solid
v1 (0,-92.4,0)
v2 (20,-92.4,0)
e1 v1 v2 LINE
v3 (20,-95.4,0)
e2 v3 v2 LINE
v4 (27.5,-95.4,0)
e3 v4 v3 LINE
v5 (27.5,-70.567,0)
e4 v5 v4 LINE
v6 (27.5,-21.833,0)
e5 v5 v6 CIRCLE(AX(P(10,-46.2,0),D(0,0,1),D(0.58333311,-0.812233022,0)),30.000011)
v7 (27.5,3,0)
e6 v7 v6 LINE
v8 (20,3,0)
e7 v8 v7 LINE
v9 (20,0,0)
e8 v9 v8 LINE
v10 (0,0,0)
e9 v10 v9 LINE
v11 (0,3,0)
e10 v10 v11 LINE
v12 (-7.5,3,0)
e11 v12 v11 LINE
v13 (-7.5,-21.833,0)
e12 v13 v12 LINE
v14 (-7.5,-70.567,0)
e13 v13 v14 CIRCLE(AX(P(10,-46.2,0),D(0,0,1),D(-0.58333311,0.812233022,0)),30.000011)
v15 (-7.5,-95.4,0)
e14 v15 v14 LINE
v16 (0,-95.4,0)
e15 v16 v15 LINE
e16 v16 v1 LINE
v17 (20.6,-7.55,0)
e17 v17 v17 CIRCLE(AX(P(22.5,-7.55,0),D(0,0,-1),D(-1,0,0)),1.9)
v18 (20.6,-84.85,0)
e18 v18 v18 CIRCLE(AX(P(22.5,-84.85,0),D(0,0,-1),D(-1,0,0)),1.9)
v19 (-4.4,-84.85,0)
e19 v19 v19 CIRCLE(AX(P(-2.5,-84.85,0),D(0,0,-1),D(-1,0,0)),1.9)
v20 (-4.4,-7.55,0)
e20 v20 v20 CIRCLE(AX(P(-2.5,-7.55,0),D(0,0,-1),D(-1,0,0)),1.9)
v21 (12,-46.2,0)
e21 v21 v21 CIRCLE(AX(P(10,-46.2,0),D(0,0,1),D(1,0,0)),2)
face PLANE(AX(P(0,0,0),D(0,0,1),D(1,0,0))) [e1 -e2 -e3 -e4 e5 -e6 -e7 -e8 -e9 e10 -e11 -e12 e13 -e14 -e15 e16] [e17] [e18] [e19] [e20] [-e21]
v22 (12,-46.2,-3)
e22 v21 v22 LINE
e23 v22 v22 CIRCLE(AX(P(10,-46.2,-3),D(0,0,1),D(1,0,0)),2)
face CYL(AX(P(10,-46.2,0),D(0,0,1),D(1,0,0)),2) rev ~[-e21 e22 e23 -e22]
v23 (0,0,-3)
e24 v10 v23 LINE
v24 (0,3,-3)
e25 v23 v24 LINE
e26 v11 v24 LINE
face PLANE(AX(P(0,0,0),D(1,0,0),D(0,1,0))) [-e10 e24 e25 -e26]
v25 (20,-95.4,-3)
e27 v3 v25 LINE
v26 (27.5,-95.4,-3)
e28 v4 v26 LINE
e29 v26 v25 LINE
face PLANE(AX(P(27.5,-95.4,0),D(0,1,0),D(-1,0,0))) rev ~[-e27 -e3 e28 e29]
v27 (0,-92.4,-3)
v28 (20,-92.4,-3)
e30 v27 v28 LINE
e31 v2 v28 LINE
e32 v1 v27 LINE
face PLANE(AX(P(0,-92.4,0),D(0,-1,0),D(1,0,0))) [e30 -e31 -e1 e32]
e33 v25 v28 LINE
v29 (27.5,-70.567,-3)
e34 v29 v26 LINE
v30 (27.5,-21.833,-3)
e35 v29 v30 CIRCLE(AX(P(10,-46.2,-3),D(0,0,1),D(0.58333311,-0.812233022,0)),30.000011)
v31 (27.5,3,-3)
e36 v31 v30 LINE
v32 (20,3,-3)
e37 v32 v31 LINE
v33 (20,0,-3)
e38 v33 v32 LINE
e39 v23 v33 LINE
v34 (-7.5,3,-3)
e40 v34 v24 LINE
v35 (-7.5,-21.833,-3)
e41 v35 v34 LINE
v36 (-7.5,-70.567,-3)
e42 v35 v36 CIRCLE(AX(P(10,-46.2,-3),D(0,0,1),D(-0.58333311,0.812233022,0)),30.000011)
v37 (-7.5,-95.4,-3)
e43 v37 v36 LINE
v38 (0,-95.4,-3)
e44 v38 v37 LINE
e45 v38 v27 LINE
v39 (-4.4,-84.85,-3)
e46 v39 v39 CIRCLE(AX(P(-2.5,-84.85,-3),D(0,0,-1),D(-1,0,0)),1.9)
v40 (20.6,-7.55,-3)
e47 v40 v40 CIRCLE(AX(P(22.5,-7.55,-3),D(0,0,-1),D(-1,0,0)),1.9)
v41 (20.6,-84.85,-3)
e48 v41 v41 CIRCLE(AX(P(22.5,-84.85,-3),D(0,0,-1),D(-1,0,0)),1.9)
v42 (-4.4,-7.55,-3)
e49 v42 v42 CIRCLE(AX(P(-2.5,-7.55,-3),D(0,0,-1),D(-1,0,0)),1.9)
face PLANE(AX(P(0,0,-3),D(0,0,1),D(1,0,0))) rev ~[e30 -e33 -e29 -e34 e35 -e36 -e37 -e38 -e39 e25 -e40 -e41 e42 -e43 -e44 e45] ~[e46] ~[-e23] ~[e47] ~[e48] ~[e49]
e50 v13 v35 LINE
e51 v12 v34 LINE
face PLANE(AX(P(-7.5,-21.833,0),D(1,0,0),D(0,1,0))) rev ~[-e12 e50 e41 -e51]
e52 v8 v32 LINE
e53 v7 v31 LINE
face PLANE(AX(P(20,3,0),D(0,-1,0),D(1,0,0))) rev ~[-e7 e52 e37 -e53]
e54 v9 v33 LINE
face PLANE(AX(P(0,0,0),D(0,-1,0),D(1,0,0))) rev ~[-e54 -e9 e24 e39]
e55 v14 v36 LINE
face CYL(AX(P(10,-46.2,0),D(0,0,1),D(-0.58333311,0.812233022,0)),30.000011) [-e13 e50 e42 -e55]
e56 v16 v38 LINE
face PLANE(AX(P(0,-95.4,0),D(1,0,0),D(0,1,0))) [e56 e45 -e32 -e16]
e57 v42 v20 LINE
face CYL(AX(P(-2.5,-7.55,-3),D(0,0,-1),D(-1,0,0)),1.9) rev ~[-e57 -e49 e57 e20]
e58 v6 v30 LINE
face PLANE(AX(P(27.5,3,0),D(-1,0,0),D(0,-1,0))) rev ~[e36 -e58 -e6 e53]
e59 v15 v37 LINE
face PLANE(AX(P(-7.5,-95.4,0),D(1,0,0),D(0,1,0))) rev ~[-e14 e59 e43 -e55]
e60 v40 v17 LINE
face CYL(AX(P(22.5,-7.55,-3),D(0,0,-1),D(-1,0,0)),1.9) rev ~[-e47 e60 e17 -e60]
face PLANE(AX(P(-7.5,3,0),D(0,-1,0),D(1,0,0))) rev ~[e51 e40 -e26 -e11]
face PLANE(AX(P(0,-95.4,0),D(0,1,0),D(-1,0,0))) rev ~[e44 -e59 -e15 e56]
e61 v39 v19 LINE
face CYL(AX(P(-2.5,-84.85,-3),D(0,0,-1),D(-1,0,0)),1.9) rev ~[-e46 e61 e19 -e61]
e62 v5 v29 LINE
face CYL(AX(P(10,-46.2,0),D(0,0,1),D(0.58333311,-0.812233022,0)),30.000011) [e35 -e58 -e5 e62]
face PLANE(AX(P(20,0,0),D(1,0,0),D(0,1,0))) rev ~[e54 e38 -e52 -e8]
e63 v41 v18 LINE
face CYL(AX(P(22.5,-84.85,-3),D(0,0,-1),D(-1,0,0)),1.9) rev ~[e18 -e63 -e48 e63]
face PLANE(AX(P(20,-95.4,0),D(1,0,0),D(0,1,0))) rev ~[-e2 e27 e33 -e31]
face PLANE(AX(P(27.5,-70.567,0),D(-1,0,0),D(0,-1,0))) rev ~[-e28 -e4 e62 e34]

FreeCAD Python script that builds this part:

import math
import FreeCAD as App
import Part
import Sketcher

V = App.Vector

doc = App.newDocument("Part")
params = doc.addObject("Spreadsheet::Sheet", "Params")
for row, (alias, value) in enumerate([
    ("sketch1_radius", "30 mm"),
    ("sketch1_width", "20 mm"),
    ("sketch1_height", "3 mm"),
    ("pad1_length", "3 mm"),
    ("sketch2_diameter", "3.8 mm"),
    ("pocket1_length", "27.1625 mm"),
    ("sketch3_diameter", "4 mm"),
    ("pocket2_length", "14.4625 mm"),
], start=1):
    params.set(f"A{row}", alias)
    params.set(f"B{row}", "=" + value)
    params.setAlias(f"B{row}", alias)

body = doc.addObject("PartDesign::Body", "Body")

# Sketch on XY plane
sketch1 = body.newObject("Sketcher::SketchObject", "Sketch")
sketch1.AttachmentSupport = (doc.getObject("XY_Plane"), [""])
sketch1.MapMode = "FlatFace"
sketch1.addGeometry([
    Part.LineSegment(V(20, 0, 0), V(0, 0, 0)),  # 0
    Part.LineSegment(V(0, 0, 0), V(0, 3, 0)),  # 1
    Part.LineSegment(V(0, 3, 0), V(-7.5, 3, 0)),  # 2
    Part.LineSegment(V(-7.5, 3, 0), V(-7.5, -21.833, 0)),  # 3
    Part.ArcOfCircle(Part.Circle(V(10, -46.2, 0), V(0, 0, 1), 30.000011), math.radians(125.685319), math.radians(234.314681)),  # 4
    Part.LineSegment(V(-7.5, -70.567, 0), V(-7.5, -95.4, 0)),  # 5
    Part.LineSegment(V(-7.5, -95.4, 0), V(0, -95.4, 0)),  # 6
    Part.LineSegment(V(0, -95.4, 0), V(0, -92.4, 0)),  # 7
    Part.LineSegment(V(0, -92.4, 0), V(20, -92.4, 0)),  # 8
    Part.LineSegment(V(20, -92.4, 0), V(20, -95.4, 0)),  # 9
    Part.LineSegment(V(20, -95.4, 0), V(27.5, -95.4, 0)),  # 10
    Part.LineSegment(V(27.5, -95.4, 0), V(27.5, -70.567, 0)),  # 11
    Part.ArcOfCircle(Part.Circle(V(10, -46.2, 0), V(0, 0, 1), 30.000011), math.radians(-54.314681), math.radians(54.314681)),  # 12
    Part.LineSegment(V(27.5, -21.833, 0), V(27.5, 3, 0)),  # 13
    Part.LineSegment(V(27.5, 3, 0), V(20, 3, 0)),  # 14
    Part.LineSegment(V(20, 3, 0), V(20, 0, 0)),  # 15
], False)
sketch1.addConstraint([
    Sketcher.Constraint("Coincident", 0, 2, 1, 1),
    Sketcher.Constraint("Coincident", 1, 2, 2, 1),
    Sketcher.Constraint("Coincident", 2, 2, 3, 1),
    Sketcher.Constraint("Coincident", 3, 2, 4, 1),
    Sketcher.Constraint("Coincident", 4, 2, 5, 1),
    Sketcher.Constraint("Coincident", 5, 2, 6, 1),
    Sketcher.Constraint("Coincident", 6, 2, 7, 1),
    Sketcher.Constraint("Coincident", 7, 2, 8, 1),
    Sketcher.Constraint("Coincident", 8, 2, 9, 1),
    Sketcher.Constraint("Coincident", 9, 2, 10, 1),
    Sketcher.Constraint("Coincident", 10, 2, 11, 1),
    Sketcher.Constraint("Coincident", 11, 2, 12, 1),
    Sketcher.Constraint("Coincident", 12, 2, 13, 1),
    Sketcher.Constraint("Coincident", 13, 2, 14, 1),
    Sketcher.Constraint("Coincident", 14, 2, 15, 1),
    Sketcher.Constraint("Coincident", 15, 2, 0, 1),
    Sketcher.Constraint("Horizontal", 0),
    Sketcher.Constraint("Vertical", 1),
    Sketcher.Constraint("Horizontal", 2),
    Sketcher.Constraint("Vertical", 3),
    Sketcher.Constraint("Vertical", 5),
    Sketcher.Constraint("Horizontal", 6),
    Sketcher.Constraint("Vertical", 7),
    Sketcher.Constraint("Horizontal", 8),
    Sketcher.Constraint("Vertical", 9),
    Sketcher.Constraint("Horizontal", 10),
    Sketcher.Constraint("Vertical", 11),
    Sketcher.Constraint("Vertical", 13),
    Sketcher.Constraint("Horizontal", 14),
    Sketcher.Constraint("Vertical", 15),
    Sketcher.Constraint("Coincident", 0, 2, -1, 1),
    Sketcher.Constraint("Coincident", 12, 3, 4, 3),
    Sketcher.Constraint("Equal", 4, 12),
    Sketcher.Constraint("PointOnObject", 6, 2, -2),
    Sketcher.Constraint("Horizontal", 6, 2, 9, 2),
    Sketcher.Constraint("Horizontal", 4, 2, 11, 2),
    Sketcher.Constraint("Horizontal", 3, 2, 12, 2),
    Sketcher.Constraint("Horizontal", 2, 2, 13, 2),
    Sketcher.Constraint("Vertical", 3, 2, 4, 2),
    Sketcher.Constraint("Vertical", 9, 2, 14, 2),
    Sketcher.Constraint("Equal", 6, 10),
    Sketcher.Constraint("Equal", 3, 5),
    Sketcher.Constraint("Equal", 1, 7),
    Sketcher.Constraint("Radius", 4, 30.0),
    Sketcher.Constraint("DistanceX", 5, 2, 10, 2, 35.0),
    Sketcher.Constraint("DistanceX", 0, 2, 0, 1, 20.0),
    Sketcher.Constraint("DistanceY", 1, 1, 1, 2, 3.0),
    Sketcher.Constraint("DistanceY", 4, 3, -1, 1, 46.2),
])
sketch1.setExpression("Constraints[43]", "Params.sketch1_radius")
sketch1.setExpression("Constraints[45]", "Params.sketch1_width")
sketch1.setExpression("Constraints[46]", "Params.sketch1_height")
pad1 = body.newObject("PartDesign::Pad", "Pad")
pad1.Profile = sketch1
pad1.setExpression("Length", "Params.pad1_length")
pad1.Reversed = True

# Sketch on XY plane
sketch2 = body.newObject("Sketcher::SketchObject", "Sketch001")
sketch2.AttachmentSupport = (doc.getObject("XY_Plane"), [""])
sketch2.MapMode = "FlatFace"
sketch2.AttachmentOffset = App.Placement(V(0, 0, -3), App.Rotation())
sketch2.addGeometry([
    Part.Circle(V(22.5, -84.85, 0), V(0, 0, 1), 1.9),
    Part.Circle(V(-2.5, -84.85, 0), V(0, 0, 1), 1.9),
    Part.Circle(V(-2.5, -7.55, 0), V(0, 0, 1), 1.9),
    Part.Circle(V(22.5, -7.55, 0), V(0, 0, 1), 1.9),
], False)
sketch2.addConstraint([
    Sketcher.Constraint("Equal", 0, 1),
    Sketcher.Constraint("Equal", 1, 2),
    Sketcher.Constraint("Equal", 2, 3),
    Sketcher.Constraint("Horizontal", 0, 3, 1, 3),
    Sketcher.Constraint("Horizontal", 2, 3, 3, 3),
    Sketcher.Constraint("Vertical", 1, 3, 2, 3),
    Sketcher.Constraint("Vertical", 0, 3, 3, 3),
    Sketcher.Constraint("Diameter", 0, 3.8),
    Sketcher.Constraint("DistanceX", 1, 3, 0, 3, 25.0),
    Sketcher.Constraint("DistanceX", -1, 1, 0, 3, 22.5),
    Sketcher.Constraint("DistanceY", 1, 3, 2, 3, 77.3),
    Sketcher.Constraint("DistanceY", 0, 3, -1, 1, 84.85),
])
sketch2.setExpression("Constraints[7]", "Params.sketch2_diameter")
pocket1 = body.newObject("PartDesign::Pocket", "Pocket")
pocket1.Profile = sketch2
pocket1.setExpression("Length", "Params.pocket1_length")
pocket1.Reversed = True

# Sketch on XY plane
sketch3 = body.newObject("Sketcher::SketchObject", "Sketch002")
sketch3.AttachmentSupport = (doc.getObject("XY_Plane"), [""])
sketch3.MapMode = "FlatFace"
sketch3.addGeometry(Part.Circle(V(10, -46.2, 0), V(0, 0, 1), 2), False)
sketch3.addConstraint([
    Sketcher.Constraint("Diameter", 0, 4.0),
    Sketcher.Constraint("DistanceX", -1, 1, 0, 3, 10.0),
    Sketcher.Constraint("DistanceY", 0, 3, -1, 1, 46.2),
])
sketch3.setExpression("Constraints[0]", "Params.sketch3_diameter")
pocket2 = body.newObject("PartDesign::Pocket", "Pocket001")
pocket2.Profile = sketch3
pocket2.setExpression("Length", "Params.pocket2_length")

doc.recompute()
